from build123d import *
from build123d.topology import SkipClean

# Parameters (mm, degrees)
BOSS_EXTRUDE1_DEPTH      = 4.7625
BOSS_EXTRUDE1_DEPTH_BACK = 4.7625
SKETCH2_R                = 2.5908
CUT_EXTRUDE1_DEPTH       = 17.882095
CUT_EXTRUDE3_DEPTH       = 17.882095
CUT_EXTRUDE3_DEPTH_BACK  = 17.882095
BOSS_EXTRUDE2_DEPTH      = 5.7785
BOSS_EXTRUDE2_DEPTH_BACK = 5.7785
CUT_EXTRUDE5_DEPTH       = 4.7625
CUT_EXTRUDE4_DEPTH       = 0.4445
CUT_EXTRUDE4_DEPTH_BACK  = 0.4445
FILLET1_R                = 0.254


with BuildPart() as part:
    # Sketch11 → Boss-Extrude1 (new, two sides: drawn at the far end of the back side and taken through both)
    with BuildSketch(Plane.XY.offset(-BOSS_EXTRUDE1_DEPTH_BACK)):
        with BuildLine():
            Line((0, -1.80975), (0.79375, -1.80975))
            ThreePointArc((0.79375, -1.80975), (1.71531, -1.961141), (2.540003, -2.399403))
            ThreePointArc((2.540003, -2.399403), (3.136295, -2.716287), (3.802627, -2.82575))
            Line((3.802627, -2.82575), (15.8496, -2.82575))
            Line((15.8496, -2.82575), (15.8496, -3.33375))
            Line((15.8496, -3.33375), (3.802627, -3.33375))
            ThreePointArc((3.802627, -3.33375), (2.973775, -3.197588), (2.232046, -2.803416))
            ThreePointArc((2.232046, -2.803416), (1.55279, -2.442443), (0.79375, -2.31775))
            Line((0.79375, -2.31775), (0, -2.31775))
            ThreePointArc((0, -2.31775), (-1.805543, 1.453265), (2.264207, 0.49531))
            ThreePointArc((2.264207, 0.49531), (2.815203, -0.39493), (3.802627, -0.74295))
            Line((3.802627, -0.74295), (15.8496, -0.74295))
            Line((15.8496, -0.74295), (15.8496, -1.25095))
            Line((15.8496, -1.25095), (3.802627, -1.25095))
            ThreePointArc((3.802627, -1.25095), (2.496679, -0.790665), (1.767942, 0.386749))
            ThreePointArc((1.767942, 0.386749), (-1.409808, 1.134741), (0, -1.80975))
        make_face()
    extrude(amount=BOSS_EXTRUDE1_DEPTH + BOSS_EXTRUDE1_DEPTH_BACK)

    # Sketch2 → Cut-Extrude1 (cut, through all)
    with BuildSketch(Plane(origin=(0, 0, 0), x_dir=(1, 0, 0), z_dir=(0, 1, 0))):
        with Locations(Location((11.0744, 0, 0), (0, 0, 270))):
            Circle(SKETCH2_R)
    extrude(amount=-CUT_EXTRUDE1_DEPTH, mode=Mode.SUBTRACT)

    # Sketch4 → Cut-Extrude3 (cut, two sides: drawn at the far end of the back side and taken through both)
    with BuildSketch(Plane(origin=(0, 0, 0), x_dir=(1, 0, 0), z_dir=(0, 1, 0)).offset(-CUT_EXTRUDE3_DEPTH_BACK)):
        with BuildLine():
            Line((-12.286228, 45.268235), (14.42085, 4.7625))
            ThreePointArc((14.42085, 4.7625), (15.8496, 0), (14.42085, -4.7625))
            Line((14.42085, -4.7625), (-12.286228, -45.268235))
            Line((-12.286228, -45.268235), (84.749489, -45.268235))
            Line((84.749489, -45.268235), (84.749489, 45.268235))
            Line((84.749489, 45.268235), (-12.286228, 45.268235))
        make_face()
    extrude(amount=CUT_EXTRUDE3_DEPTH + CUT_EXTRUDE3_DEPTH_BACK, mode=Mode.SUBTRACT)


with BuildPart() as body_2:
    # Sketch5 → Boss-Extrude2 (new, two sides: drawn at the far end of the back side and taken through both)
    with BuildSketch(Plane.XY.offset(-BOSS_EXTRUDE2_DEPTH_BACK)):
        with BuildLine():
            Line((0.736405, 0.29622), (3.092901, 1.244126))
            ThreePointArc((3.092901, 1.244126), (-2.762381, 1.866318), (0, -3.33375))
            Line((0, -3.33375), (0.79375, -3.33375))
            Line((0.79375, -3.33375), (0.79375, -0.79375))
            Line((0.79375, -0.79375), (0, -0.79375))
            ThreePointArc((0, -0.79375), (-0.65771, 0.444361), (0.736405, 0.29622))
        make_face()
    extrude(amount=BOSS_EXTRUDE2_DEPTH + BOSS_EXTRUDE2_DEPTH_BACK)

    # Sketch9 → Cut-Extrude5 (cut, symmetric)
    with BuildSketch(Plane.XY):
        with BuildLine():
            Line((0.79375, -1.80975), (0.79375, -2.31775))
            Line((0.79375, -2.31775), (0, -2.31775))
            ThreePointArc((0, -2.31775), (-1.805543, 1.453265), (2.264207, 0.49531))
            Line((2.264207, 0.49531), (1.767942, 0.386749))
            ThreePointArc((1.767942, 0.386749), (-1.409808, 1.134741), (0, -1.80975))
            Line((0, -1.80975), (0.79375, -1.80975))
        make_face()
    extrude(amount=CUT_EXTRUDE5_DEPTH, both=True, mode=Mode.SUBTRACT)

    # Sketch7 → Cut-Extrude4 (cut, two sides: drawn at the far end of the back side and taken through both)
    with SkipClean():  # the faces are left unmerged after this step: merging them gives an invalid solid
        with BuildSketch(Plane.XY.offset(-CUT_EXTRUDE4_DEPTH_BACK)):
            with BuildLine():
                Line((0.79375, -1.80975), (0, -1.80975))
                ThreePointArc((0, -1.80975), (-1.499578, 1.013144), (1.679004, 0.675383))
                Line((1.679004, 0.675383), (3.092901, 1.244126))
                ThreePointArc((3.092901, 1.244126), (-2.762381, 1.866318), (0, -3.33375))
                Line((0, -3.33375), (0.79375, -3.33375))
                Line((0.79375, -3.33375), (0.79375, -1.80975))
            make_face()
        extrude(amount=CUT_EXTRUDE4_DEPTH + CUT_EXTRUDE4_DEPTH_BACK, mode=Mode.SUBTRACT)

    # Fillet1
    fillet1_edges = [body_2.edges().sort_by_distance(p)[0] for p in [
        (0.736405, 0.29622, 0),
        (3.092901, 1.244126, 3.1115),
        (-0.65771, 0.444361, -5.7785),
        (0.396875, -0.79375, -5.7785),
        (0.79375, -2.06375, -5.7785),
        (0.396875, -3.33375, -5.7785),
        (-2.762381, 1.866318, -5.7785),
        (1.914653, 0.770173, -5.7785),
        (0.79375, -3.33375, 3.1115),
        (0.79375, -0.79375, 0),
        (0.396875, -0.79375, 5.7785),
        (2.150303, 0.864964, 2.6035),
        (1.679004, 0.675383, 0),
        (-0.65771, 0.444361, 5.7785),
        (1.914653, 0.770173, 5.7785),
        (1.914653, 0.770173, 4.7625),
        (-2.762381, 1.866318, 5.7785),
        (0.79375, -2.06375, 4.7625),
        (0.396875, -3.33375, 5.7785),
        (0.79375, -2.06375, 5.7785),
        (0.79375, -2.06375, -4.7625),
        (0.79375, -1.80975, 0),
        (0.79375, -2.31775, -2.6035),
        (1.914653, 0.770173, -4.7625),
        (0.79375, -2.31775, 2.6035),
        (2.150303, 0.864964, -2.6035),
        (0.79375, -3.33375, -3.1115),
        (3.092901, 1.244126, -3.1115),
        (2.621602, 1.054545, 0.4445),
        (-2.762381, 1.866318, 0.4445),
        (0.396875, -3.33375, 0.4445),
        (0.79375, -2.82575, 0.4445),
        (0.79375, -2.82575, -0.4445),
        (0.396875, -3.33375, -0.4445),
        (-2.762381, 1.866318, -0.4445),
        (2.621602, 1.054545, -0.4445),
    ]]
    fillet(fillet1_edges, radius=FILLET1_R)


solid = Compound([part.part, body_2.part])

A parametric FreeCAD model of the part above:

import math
import FreeCAD as App
import Part
import Sketcher
Q = App.Units.Quantity


def edges_at(feature, points):
    """Names of the edges that pass closest to the given points."""
    edges = feature.Shape.Edges
    near = lambda p: min(range(len(edges)), key=lambda i: edges[i].distToShape(Part.Vertex(*p))[0])
    return sorted({f"Edge{near(p) + 1}" for p in points})

doc = App.newDocument("Part")
params = doc.addObject("Spreadsheet::Sheet", "Params")
for row, (alias, value) in enumerate([
    ("sketch1_radius", "0.0820001 in"),
    ("sketch1_radius2", "0.062 in"),
    ("sketch1_radius3", "0.1020002 in"),
    ("sketch1_width", "0.03125 in"),
    ("pad1_length", "0.1875 in"),
    ("pad1_length2", "0.1875 in"),
    ("sketch2_diameter", "0.204 in"),
    ("sketch4_height", "0.1 in"),
    ("sketch4_radius", "0.03125 in"),
    ("sketch4_width", "0.03125 in"),
    ("pad2_length", "0.2275 in"),
    ("pad2_length2", "0.2275 in"),
    ("sketch5_height", "0.02 in"),
    ("sketch5_width", "0.03125 in"),
    ("pocket3_length", "0.375 in"),
    ("sketch6_height", "0.06 in"),
    ("sketch6_width", "0.03125 in"),
    ("pocket4_length", "0.0175 in"),
    ("pocket4_length2", "0.0175 in"),
    ("fillet_radius", "0.01 in"),
], start=1):
    params.set(f"A{row}", alias)
    params.set(f"B{row}", "=" + value)
    params.setAlias(f"B{row}", alias)

body = doc.addObject("PartDesign::Body", "Body")

# Sketch on XY plane
sketch1 = body.newObject("Sketcher::SketchObject", "Sketch")
sketch1.AttachmentSupport = (doc.getObject("XY_Plane"), [""])
sketch1.MapMode = "FlatFace"
sketch1.addGeometry([
    Part.LineSegment(App.Vector(0.8, -1.8, 0), App.Vector(0, -1.8, 0)),  # 0
    Part.ArcOfCircle(Part.Circle(App.Vector(0, 0, 0), App.Vector(0, 0, 1), 1.8), math.radians(12), math.radians(270)),  # 1
    Part.ArcOfCircle(Part.Circle(App.Vector(3.8, 0.8, 0), App.Vector(0, 0, 1), 2.1), math.radians(-168), math.radians(-90)),  # 2
    Part.LineSegment(App.Vector(3.8, -1.3, 0), App.Vector(15.8, -1.3, 0)),  # 3
    Part.LineSegment(App.Vector(15.8, -1.3, 0), App.Vector(15.8, -0.7, 0)),  # 4
    Part.LineSegment(App.Vector(15.8, -0.7, 0), App.Vector(3.8, -0.7, 0)),  # 5
    Part.ArcOfCircle(Part.Circle(App.Vector(3.8, 0.8, 0), App.Vector(0, 0, 1), 1.6), math.radians(-168), math.radians(-90)),  # 6
    Part.ArcOfCircle(Part.Circle(App.Vector(0, 0, 0), App.Vector(0, 0, 1), 2.3), math.radians(12), math.radians(270)),  # 7
    Part.LineSegment(App.Vector(0, -2.3, 0), App.Vector(0.8, -2.3, 0)),  # 8
    Part.ArcOfCircle(Part.Circle(App.Vector(0.8, -4.7, 0), App.Vector(0, 0, 1), 2.4), math.radians(53), math.radians(90)),  # 9
    Part.ArcOfCircle(Part.Circle(App.Vector(3.8, -0.7, 0), App.Vector(0, 0, 1), 2.6), math.radians(-127), math.radians(-90)),  # 10
    Part.LineSegment(App.Vector(3.8, -3.3, 0), App.Vector(15.8, -3.3, 0)),  # 11
    Part.LineSegment(App.Vector(15.8, -3.3, 0), App.Vector(15.8, -2.8, 0)),  # 12
    Part.LineSegment(App.Vector(15.8, -2.8, 0), App.Vector(3.8, -2.8, 0)),  # 13
    Part.ArcOfCircle(Part.Circle(App.Vector(3.8, -0.7, 0), App.Vector(0, 0, 1), 2.1), math.radians(-127), math.radians(-90)),  # 14
    Part.ArcOfCircle(Part.Circle(App.Vector(0.8, -4.7, 0), App.Vector(0, 0, 1), 2.9), math.radians(53), math.radians(90)),  # 15
], False)
sketch1.addConstraint([
    Sketcher.Constraint("Tangent", 0, 2, 1, 2),
    Sketcher.Constraint("Tangent", 1, 1, 2, 1),
    Sketcher.Constraint("Tangent", 2, 2, 3, 1),
    Sketcher.Constraint("Coincident", 3, 2, 4, 1),
    Sketcher.Constraint("Coincident", 4, 2, 5, 1),
    Sketcher.Constraint("Tangent", 5, 2, 6, 2),
    Sketcher.Constraint("Tangent", 6, 1, 7, 1),
    Sketcher.Constraint("Tangent", 7, 2, 8, 1),
    Sketcher.Constraint("Tangent", 8, 2, 9, 2),
    Sketcher.Constraint("Tangent", 9, 1, 10, 1),
    Sketcher.Constraint("Tangent", 10, 2, 11, 1),
    Sketcher.Constraint("Coincident", 11, 2, 12, 1),
    Sketcher.Constraint("Coincident", 12, 2, 13, 1),
    Sketcher.Constraint("Tangent", 13, 2, 14, 2),
    Sketcher.Constraint("Tangent", 14, 1, 15, 1),
    Sketcher.Constraint("Tangent", 15, 2, 0, 1),
    Sketcher.Constraint("Horizontal", 0),
    Sketcher.Constraint("Horizontal", 3),
    Sketcher.Constraint("Vertical", 4),
    Sketcher.Constraint("Horizontal", 5),
    Sketcher.Constraint("Horizontal", 8),
    Sketcher.Constraint("Horizontal", 11),
    Sketcher.Constraint("Vertical", 12),
    Sketcher.Constraint("Horizontal", 13),
    Sketcher.Constraint("Coincident", 1, 3, -1, 1),
    Sketcher.Constraint("Coincident", 7, 3, -1, 1),
    Sketcher.Constraint("Coincident", 6, 3, 2, 3),
    Sketcher.Constraint("Coincident", 15, 3, 9, 3),
    Sketcher.Constraint("Coincident", 5, 2, 10, 3),
    Sketcher.Constraint("Vertical", 6, 3, 14, 3),
    Sketcher.Constraint("Vertical", 4, 2, 11, 2),
    Sketcher.Constraint("Equal", 4, 12),
    Sketcher.Constraint("Radius", 2, Q("0.0820001 in")),
    Sketcher.Constraint("Radius", 6, Q("0.062 in")),
    Sketcher.Constraint("Radius", 10, Q("0.1020002 in")),
    Sketcher.Constraint("DistanceX", -1, 1, 14, 1, Q("0.1000001 in")),
    Sketcher.Constraint("DistanceX", 0, 2, 0, 1, Q("0.03125 in")),
    Sketcher.Constraint("DistanceX", -1, 1, 3, 2, Q("0.624 in")),
    Sketcher.Constraint("Radius", 1, Q("1.80975 mm")),
])
sketch1.setExpression("Constraints[32]", "Params.sketch1_radius")
sketch1.setExpression("Constraints[33]", "Params.sketch1_radius2")
sketch1.setExpression("Constraints[34]", "Params.sketch1_radius3")
sketch1.setExpression("Constraints[36]", "Params.sketch1_width")
pad1 = body.newObject("PartDesign::Pad", "Pad")
pad1.Profile = sketch1
pad1.Type = "TwoLengths"
pad1.setExpression("Length", "Params.pad1_length")
pad1.setExpression("Length2", "Params.pad1_length2")

# Sketch on XZ plane
sketch2 = body.newObject("Sketcher::SketchObject", "Sketch001")
sketch2.AttachmentSupport = (doc.getObject("XZ_Plane"), [""])
sketch2.MapMode = "FlatFace"
sketch2.addGeometry(Part.Circle(App.Vector(11.1, 0, 0), App.Vector(0, 0, 1), 2.6), False)
sketch2.addConstraint([
    Sketcher.Constraint("PointOnObject", 0, 3, -1),
    Sketcher.Constraint("Diameter", 0, Q("0.204 in")),
    Sketcher.Constraint("DistanceX", -1, 1, 0, 3, Q("0.436 in")),
])
sketch2.setExpression("Constraints[1]", "Params.sketch2_diameter")
pocket1 = body.newObject("PartDesign::Pocket", "Pocket")
pocket1.Profile = sketch2
pocket1.Type = "ThroughAll"
pocket1.Reversed = True

# Sketch on XZ plane
sketch3 = body.newObject("Sketcher::SketchObject", "Sketch002")
sketch3.AttachmentSupport = (doc.getObject("XZ_Plane"), [""])
sketch3.MapMode = "FlatFace"
sketch3.addGeometry([
    Part.LineSegment(App.Vector(-12, -45, 0), App.Vector(14, -5, 0)),  # 0
    Part.ArcOfCircle(Part.Circle(App.Vector(7, 0, 0), App.Vector(0, 0, 1), 9), math.radians(-33), math.radians(33)),  # 1
    Part.LineSegment(App.Vector(14, 5, 0), App.Vector(-12, 45, 0)),  # 2
    Part.LineSegment(App.Vector(-12, 45, 0), App.Vector(85, 45, 0)),  # 3
    Part.LineSegment(App.Vector(85, 45, 0), App.Vector(85, -45, 0)),  # 4
    Part.LineSegment(App.Vector(85, -45, 0), App.Vector(-12, -45, 0)),  # 5
], False)
sketch3.addConstraint([
    Sketcher.Constraint("Tangent", 0, 2, 1, 1),
    Sketcher.Constraint("Tangent", 1, 2, 2, 1),
    Sketcher.Constraint("Coincident", 2, 2, 3, 1),
    Sketcher.Constraint("Coincident", 3, 2, 4, 1),
    Sketcher.Constraint("Coincident", 4, 2, 5, 1),
    Sketcher.Constraint("Coincident", 5, 2, 0, 1),
    Sketcher.Constraint("Horizontal", 3),
    Sketcher.Constraint("Vertical", 4),
    Sketcher.Constraint("Horizontal", 5),
    Sketcher.Constraint("Symmetric", 0, 2, 1, 2, -1),
    Sketcher.Constraint("Vertical", 2, 2, 5, 2),
    Sketcher.Constraint("DistanceY", 0, 2, -1, 1, Q("0.1875 in")),
    Sketcher.Constraint("Radius", 1, Q("8.651875 mm")),
    Sketcher.Constraint("DistanceY", 4, 2, 4, 1, Q("90.53647 mm")),
    Sketcher.Constraint("DistanceX", 3, 1, 3, 2, Q("97.035717 mm")),
    Sketcher.Constraint("DistanceX", -1, 1, 0, 2, Q("14.42085 mm")),
])
pocket2 = body.newObject("PartDesign::Pocket", "Pocket001")
pocket2.Profile = sketch3
pocket2.Type = "ThroughAll"
pocket2.Midplane = True
body2 = doc.addObject("PartDesign::Body", "Body001")

# Sketch on XY plane
sketch4 = body2.newObject("Sketcher::SketchObject", "Sketch003")
sketch4.AttachmentSupport = (doc.getObject("XY_Plane001"), [""])
sketch4.MapMode = "FlatFace"
sketch4.addGeometry([
    Part.LineSegment(App.Vector(0.7, 0.3, 0), App.Vector(3.1, 1.2, 0)),  # 0
    Part.ArcOfCircle(Part.Circle(App.Vector(0, 0, 0), App.Vector(0, 0, 1), 3.3), math.radians(22), math.radians(270)),  # 1
    Part.LineSegment(App.Vector(0, -3.3, 0), App.Vector(0.8, -3.3, 0)),  # 2
    Part.LineSegment(App.Vector(0.8, -3.3, 0), App.Vector(0.8, -0.8, 0)),  # 3
    Part.LineSegment(App.Vector(0.8, -0.8, 0), App.Vector(0, -0.8, 0)),  # 4
    Part.ArcOfCircle(Part.Circle(App.Vector(0, 0, 0), App.Vector(0, 0, 1), 0.8), math.radians(22), math.radians(270)),  # 5
], False)
sketch4.addConstraint([
    Sketcher.Constraint("Coincident", 0, 2, 1, 1),
    Sketcher.Constraint("Tangent", 1, 2, 2, 1),
    Sketcher.Constraint("Coincident", 2, 2, 3, 1),
    Sketcher.Constraint("Coincident", 3, 2, 4, 1),
    Sketcher.Constraint("Tangent", 4, 2, 5, 2),
    Sketcher.Constraint("Coincident", 5, 1, 0, 1),
    Sketcher.Constraint("Horizontal", 2),
    Sketcher.Constraint("Vertical", 3),
    Sketcher.Constraint("Horizontal", 4),
    Sketcher.Constraint("Coincident", 1, 3, -1, 1),
    Sketcher.Constraint("Coincident", 5, 3, -1, 1),
    Sketcher.Constraint("DistanceY", 3, 1, 3, 2, Q("0.1 in")),
    Sketcher.Constraint("Radius", 5, Q("0.03125 in")),
    Sketcher.Constraint("DistanceX", 2, 1, 2, 2, Q("0.03125 in")),
    Sketcher.Constraint("DistanceX", -1, 1, 0, 2, Q("3.092901 mm")),
    Sketcher.Constraint("DistanceY", -1, 1, 5, 1, Q("0.29622 mm")),
])
sketch4.setExpression("Constraints[11]", "Params.sketch4_height")
sketch4.setExpression("Constraints[12]", "Params.sketch4_radius")
sketch4.setExpression("Constraints[13]", "Params.sketch4_width")
pad2 = body2.newObject("PartDesign::Pad", "Pad001")
pad2.Profile = sketch4
pad2.Type = "TwoLengths"
pad2.setExpression("Length", "Params.pad2_length")
pad2.setExpression("Length2", "Params.pad2_length2")

# Sketch on XY plane
sketch5 = body2.newObject("Sketcher::SketchObject", "Sketch004")
sketch5.AttachmentSupport = (doc.getObject("XY_Plane001"), [""])
sketch5.MapMode = "FlatFace"
sketch5.addGeometry([
    Part.LineSegment(App.Vector(0.8, -2.3, 0), App.Vector(0.8, -1.8, 0)),  # 0
    Part.LineSegment(App.Vector(0.8, -1.8, 0), App.Vector(0, -1.8, 0)),  # 1
    Part.ArcOfCircle(Part.Circle(App.Vector(0, 0, 0), App.Vector(0, 0, 1), 1.8), math.radians(12), math.radians(270)),  # 2
    Part.LineSegment(App.Vector(1.8, 0.4, 0), App.Vector(2.3, 0.5, 0)),  # 3
    Part.ArcOfCircle(Part.Circle(App.Vector(0, 0, 0), App.Vector(0, 0, 1), 2.3), math.radians(12), math.radians(270)),  # 4
    Part.LineSegment(App.Vector(0, -2.3, 0), App.Vector(0.8, -2.3, 0)),  # 5
], False)
sketch5.addConstraint([
    Sketcher.Constraint("Coincident", 0, 2, 1, 1),
    Sketcher.Constraint("Tangent", 1, 2, 2, 2),
    Sketcher.Constraint("Coincident", 2, 1, 3, 1),
    Sketcher.Constraint("Coincident", 3, 2, 4, 1),
    Sketcher.Constraint("Tangent", 4, 2, 5, 1),
    Sketcher.Constraint("Coincident", 5, 2, 0, 1),
    Sketcher.Constraint("Vertical", 0),
    Sketcher.Constraint("Horizontal", 1),
    Sketcher.Constraint("Horizontal", 5),
    Sketcher.Constraint("Coincident", 2, 3, -1, 1),
    Sketcher.Constraint("Coincident", 4, 3, -1, 1),
    Sketcher.Constraint("DistanceY", 0, 1, 0, 2, Q("0.02 in")),
    Sketcher.Constraint("DistanceX", 1, 2, 1, 1, Q("0.03125 in")),
    Sketcher.Constraint("Radius", 2, Q("1.80975 mm")),
    Sketcher.Constraint("DistanceY", 0, 2, 2, 1, Q("2.196499 mm")),
    Sketcher.Constraint("DistanceY", -1, 1, 3, 2, Q("0.49531 mm")),
])
sketch5.setExpression("Constraints[11]", "Params.sketch5_height")
sketch5.setExpression("Constraints[12]", "Params.sketch5_width")
pocket3 = body2.newObject("PartDesign::Pocket", "Pocket002")
pocket3.Profile = sketch5
pocket3.setExpression("Length", "Params.pocket3_length")
pocket3.Midplane = True

# Sketch on XY plane
sketch6 = body2.newObject("Sketcher::SketchObject", "Sketch005")
sketch6.AttachmentSupport = (doc.getObject("XY_Plane001"), [""])
sketch6.MapMode = "FlatFace"
sketch6.addGeometry([
    Part.LineSegment(App.Vector(0.8, -1.8, 0), App.Vector(0, -1.8, 0)),  # 0
    Part.ArcOfCircle(Part.Circle(App.Vector(0, 0, 0), App.Vector(0, 0, 1), 1.8), math.radians(22), math.radians(270)),  # 1
    Part.LineSegment(App.Vector(1.7, 0.7, 0), App.Vector(3.1, 1.2, 0)),  # 2
    Part.ArcOfCircle(Part.Circle(App.Vector(0, 0, 0), App.Vector(0, 0, 1), 3.3), math.radians(22), math.radians(270)),  # 3
    Part.LineSegment(App.Vector(0, -3.3, 0), App.Vector(0.8, -3.3, 0)),  # 4
    Part.LineSegment(App.Vector(0.8, -3.3, 0), App.Vector(0.8, -1.8, 0)),  # 5
], False)
sketch6.addConstraint([
    Sketcher.Constraint("Tangent", 0, 2, 1, 2),
    Sketcher.Constraint("Coincident", 1, 1, 2, 1),
    Sketcher.Constraint("Coincident", 2, 2, 3, 1),
    Sketcher.Constraint("Tangent", 3, 2, 4, 1),
    Sketcher.Constraint("Coincident", 4, 2, 5, 1),
    Sketcher.Constraint("Coincident", 5, 2, 0, 1),
    Sketcher.Constraint("Horizontal", 0),
    Sketcher.Constraint("Horizontal", 4),
    Sketcher.Constraint("Vertical", 5),
    Sketcher.Constraint("Coincident", 1, 3, -1, 1),
    Sketcher.Constraint("Coincident", 3, 3, -1, 1),
    Sketcher.Constraint("DistanceY", 5, 1, 5, 2, Q("0.06 in")),
    Sketcher.Constraint("DistanceX", 0, 2, 0, 1, Q("0.03125 in")),
    Sketcher.Constraint("Radius", 1, Q("1.80975 mm")),
    Sketcher.Constraint("DistanceX", -1, 1, 2, 2, Q("3.092901 mm")),
    Sketcher.Constraint("DistanceX", -1, 1, 1, 1, Q("1.679004 mm")),
])
sketch6.setExpression("Constraints[11]", "Params.sketch6_height")
sketch6.setExpression("Constraints[12]", "Params.sketch6_width")
pocket4 = body2.newObject("PartDesign::Pocket", "Pocket003")
pocket4.Profile = sketch6
pocket4.Type = "TwoLengths"
pocket4.setExpression("Length", "Params.pocket4_length")
pocket4.setExpression("Length2", "Params.pocket4_length2")
pocket4.Reversed = True
doc.recompute()

fillet = body2.newObject("PartDesign::Fillet", "Fillet")
fillet.Base = (pocket4, edges_at(pocket4, [
    (0.736, 0.296, 0),
    (3.093, 1.244, 3.111),
    (-0.658, 0.444, -5.779),
    (0.397, -0.794, -5.779),
    (0.794, -2.064, -5.779),
    (0.397, -3.334, -5.779),
    (-2.762, 1.866, -5.779),
    (1.915, 0.77, -5.779),
    (0.794, -3.334, 3.111),
    (0.794, -0.794, 0),
    (0.397, -0.794, 5.779),
    (2.15, 0.865, 2.603),
    (1.679, 0.675, 0),
    (-0.658, 0.444, 5.779),
    (1.915, 0.77, 5.779),
    (1.915, 0.77, 4.763),
    (-2.762, 1.866, 5.779),
    (0.794, -2.064, 4.763),
    (0.397, -3.334, 5.779),
    (0.794, -2.064, 5.779),
    (0.794, -2.064, -4.763),
    (0.794, -1.81, 0),
    (0.794, -2.318, -2.603),
    (1.915, 0.77, -4.763),
    (0.794, -2.318, 2.603),
    (2.15, 0.865, -2.603),
    (0.794, -3.334, -3.111),
    (3.093, 1.244, -3.111),
    (2.622, 1.055, 0.445),
    (-2.762, 1.866, 0.445),
    (0.397, -3.334, 0.445),
    (0.794, -2.826, 0.445),
    (0.794, -2.826, -0.445),
    (0.397, -3.334, -0.445),
    (-2.762, 1.866, -0.445),
    (2.622, 1.055, -0.445),
]))
fillet.setExpression("Radius", "Params.fillet_radius")

doc.recompute()
